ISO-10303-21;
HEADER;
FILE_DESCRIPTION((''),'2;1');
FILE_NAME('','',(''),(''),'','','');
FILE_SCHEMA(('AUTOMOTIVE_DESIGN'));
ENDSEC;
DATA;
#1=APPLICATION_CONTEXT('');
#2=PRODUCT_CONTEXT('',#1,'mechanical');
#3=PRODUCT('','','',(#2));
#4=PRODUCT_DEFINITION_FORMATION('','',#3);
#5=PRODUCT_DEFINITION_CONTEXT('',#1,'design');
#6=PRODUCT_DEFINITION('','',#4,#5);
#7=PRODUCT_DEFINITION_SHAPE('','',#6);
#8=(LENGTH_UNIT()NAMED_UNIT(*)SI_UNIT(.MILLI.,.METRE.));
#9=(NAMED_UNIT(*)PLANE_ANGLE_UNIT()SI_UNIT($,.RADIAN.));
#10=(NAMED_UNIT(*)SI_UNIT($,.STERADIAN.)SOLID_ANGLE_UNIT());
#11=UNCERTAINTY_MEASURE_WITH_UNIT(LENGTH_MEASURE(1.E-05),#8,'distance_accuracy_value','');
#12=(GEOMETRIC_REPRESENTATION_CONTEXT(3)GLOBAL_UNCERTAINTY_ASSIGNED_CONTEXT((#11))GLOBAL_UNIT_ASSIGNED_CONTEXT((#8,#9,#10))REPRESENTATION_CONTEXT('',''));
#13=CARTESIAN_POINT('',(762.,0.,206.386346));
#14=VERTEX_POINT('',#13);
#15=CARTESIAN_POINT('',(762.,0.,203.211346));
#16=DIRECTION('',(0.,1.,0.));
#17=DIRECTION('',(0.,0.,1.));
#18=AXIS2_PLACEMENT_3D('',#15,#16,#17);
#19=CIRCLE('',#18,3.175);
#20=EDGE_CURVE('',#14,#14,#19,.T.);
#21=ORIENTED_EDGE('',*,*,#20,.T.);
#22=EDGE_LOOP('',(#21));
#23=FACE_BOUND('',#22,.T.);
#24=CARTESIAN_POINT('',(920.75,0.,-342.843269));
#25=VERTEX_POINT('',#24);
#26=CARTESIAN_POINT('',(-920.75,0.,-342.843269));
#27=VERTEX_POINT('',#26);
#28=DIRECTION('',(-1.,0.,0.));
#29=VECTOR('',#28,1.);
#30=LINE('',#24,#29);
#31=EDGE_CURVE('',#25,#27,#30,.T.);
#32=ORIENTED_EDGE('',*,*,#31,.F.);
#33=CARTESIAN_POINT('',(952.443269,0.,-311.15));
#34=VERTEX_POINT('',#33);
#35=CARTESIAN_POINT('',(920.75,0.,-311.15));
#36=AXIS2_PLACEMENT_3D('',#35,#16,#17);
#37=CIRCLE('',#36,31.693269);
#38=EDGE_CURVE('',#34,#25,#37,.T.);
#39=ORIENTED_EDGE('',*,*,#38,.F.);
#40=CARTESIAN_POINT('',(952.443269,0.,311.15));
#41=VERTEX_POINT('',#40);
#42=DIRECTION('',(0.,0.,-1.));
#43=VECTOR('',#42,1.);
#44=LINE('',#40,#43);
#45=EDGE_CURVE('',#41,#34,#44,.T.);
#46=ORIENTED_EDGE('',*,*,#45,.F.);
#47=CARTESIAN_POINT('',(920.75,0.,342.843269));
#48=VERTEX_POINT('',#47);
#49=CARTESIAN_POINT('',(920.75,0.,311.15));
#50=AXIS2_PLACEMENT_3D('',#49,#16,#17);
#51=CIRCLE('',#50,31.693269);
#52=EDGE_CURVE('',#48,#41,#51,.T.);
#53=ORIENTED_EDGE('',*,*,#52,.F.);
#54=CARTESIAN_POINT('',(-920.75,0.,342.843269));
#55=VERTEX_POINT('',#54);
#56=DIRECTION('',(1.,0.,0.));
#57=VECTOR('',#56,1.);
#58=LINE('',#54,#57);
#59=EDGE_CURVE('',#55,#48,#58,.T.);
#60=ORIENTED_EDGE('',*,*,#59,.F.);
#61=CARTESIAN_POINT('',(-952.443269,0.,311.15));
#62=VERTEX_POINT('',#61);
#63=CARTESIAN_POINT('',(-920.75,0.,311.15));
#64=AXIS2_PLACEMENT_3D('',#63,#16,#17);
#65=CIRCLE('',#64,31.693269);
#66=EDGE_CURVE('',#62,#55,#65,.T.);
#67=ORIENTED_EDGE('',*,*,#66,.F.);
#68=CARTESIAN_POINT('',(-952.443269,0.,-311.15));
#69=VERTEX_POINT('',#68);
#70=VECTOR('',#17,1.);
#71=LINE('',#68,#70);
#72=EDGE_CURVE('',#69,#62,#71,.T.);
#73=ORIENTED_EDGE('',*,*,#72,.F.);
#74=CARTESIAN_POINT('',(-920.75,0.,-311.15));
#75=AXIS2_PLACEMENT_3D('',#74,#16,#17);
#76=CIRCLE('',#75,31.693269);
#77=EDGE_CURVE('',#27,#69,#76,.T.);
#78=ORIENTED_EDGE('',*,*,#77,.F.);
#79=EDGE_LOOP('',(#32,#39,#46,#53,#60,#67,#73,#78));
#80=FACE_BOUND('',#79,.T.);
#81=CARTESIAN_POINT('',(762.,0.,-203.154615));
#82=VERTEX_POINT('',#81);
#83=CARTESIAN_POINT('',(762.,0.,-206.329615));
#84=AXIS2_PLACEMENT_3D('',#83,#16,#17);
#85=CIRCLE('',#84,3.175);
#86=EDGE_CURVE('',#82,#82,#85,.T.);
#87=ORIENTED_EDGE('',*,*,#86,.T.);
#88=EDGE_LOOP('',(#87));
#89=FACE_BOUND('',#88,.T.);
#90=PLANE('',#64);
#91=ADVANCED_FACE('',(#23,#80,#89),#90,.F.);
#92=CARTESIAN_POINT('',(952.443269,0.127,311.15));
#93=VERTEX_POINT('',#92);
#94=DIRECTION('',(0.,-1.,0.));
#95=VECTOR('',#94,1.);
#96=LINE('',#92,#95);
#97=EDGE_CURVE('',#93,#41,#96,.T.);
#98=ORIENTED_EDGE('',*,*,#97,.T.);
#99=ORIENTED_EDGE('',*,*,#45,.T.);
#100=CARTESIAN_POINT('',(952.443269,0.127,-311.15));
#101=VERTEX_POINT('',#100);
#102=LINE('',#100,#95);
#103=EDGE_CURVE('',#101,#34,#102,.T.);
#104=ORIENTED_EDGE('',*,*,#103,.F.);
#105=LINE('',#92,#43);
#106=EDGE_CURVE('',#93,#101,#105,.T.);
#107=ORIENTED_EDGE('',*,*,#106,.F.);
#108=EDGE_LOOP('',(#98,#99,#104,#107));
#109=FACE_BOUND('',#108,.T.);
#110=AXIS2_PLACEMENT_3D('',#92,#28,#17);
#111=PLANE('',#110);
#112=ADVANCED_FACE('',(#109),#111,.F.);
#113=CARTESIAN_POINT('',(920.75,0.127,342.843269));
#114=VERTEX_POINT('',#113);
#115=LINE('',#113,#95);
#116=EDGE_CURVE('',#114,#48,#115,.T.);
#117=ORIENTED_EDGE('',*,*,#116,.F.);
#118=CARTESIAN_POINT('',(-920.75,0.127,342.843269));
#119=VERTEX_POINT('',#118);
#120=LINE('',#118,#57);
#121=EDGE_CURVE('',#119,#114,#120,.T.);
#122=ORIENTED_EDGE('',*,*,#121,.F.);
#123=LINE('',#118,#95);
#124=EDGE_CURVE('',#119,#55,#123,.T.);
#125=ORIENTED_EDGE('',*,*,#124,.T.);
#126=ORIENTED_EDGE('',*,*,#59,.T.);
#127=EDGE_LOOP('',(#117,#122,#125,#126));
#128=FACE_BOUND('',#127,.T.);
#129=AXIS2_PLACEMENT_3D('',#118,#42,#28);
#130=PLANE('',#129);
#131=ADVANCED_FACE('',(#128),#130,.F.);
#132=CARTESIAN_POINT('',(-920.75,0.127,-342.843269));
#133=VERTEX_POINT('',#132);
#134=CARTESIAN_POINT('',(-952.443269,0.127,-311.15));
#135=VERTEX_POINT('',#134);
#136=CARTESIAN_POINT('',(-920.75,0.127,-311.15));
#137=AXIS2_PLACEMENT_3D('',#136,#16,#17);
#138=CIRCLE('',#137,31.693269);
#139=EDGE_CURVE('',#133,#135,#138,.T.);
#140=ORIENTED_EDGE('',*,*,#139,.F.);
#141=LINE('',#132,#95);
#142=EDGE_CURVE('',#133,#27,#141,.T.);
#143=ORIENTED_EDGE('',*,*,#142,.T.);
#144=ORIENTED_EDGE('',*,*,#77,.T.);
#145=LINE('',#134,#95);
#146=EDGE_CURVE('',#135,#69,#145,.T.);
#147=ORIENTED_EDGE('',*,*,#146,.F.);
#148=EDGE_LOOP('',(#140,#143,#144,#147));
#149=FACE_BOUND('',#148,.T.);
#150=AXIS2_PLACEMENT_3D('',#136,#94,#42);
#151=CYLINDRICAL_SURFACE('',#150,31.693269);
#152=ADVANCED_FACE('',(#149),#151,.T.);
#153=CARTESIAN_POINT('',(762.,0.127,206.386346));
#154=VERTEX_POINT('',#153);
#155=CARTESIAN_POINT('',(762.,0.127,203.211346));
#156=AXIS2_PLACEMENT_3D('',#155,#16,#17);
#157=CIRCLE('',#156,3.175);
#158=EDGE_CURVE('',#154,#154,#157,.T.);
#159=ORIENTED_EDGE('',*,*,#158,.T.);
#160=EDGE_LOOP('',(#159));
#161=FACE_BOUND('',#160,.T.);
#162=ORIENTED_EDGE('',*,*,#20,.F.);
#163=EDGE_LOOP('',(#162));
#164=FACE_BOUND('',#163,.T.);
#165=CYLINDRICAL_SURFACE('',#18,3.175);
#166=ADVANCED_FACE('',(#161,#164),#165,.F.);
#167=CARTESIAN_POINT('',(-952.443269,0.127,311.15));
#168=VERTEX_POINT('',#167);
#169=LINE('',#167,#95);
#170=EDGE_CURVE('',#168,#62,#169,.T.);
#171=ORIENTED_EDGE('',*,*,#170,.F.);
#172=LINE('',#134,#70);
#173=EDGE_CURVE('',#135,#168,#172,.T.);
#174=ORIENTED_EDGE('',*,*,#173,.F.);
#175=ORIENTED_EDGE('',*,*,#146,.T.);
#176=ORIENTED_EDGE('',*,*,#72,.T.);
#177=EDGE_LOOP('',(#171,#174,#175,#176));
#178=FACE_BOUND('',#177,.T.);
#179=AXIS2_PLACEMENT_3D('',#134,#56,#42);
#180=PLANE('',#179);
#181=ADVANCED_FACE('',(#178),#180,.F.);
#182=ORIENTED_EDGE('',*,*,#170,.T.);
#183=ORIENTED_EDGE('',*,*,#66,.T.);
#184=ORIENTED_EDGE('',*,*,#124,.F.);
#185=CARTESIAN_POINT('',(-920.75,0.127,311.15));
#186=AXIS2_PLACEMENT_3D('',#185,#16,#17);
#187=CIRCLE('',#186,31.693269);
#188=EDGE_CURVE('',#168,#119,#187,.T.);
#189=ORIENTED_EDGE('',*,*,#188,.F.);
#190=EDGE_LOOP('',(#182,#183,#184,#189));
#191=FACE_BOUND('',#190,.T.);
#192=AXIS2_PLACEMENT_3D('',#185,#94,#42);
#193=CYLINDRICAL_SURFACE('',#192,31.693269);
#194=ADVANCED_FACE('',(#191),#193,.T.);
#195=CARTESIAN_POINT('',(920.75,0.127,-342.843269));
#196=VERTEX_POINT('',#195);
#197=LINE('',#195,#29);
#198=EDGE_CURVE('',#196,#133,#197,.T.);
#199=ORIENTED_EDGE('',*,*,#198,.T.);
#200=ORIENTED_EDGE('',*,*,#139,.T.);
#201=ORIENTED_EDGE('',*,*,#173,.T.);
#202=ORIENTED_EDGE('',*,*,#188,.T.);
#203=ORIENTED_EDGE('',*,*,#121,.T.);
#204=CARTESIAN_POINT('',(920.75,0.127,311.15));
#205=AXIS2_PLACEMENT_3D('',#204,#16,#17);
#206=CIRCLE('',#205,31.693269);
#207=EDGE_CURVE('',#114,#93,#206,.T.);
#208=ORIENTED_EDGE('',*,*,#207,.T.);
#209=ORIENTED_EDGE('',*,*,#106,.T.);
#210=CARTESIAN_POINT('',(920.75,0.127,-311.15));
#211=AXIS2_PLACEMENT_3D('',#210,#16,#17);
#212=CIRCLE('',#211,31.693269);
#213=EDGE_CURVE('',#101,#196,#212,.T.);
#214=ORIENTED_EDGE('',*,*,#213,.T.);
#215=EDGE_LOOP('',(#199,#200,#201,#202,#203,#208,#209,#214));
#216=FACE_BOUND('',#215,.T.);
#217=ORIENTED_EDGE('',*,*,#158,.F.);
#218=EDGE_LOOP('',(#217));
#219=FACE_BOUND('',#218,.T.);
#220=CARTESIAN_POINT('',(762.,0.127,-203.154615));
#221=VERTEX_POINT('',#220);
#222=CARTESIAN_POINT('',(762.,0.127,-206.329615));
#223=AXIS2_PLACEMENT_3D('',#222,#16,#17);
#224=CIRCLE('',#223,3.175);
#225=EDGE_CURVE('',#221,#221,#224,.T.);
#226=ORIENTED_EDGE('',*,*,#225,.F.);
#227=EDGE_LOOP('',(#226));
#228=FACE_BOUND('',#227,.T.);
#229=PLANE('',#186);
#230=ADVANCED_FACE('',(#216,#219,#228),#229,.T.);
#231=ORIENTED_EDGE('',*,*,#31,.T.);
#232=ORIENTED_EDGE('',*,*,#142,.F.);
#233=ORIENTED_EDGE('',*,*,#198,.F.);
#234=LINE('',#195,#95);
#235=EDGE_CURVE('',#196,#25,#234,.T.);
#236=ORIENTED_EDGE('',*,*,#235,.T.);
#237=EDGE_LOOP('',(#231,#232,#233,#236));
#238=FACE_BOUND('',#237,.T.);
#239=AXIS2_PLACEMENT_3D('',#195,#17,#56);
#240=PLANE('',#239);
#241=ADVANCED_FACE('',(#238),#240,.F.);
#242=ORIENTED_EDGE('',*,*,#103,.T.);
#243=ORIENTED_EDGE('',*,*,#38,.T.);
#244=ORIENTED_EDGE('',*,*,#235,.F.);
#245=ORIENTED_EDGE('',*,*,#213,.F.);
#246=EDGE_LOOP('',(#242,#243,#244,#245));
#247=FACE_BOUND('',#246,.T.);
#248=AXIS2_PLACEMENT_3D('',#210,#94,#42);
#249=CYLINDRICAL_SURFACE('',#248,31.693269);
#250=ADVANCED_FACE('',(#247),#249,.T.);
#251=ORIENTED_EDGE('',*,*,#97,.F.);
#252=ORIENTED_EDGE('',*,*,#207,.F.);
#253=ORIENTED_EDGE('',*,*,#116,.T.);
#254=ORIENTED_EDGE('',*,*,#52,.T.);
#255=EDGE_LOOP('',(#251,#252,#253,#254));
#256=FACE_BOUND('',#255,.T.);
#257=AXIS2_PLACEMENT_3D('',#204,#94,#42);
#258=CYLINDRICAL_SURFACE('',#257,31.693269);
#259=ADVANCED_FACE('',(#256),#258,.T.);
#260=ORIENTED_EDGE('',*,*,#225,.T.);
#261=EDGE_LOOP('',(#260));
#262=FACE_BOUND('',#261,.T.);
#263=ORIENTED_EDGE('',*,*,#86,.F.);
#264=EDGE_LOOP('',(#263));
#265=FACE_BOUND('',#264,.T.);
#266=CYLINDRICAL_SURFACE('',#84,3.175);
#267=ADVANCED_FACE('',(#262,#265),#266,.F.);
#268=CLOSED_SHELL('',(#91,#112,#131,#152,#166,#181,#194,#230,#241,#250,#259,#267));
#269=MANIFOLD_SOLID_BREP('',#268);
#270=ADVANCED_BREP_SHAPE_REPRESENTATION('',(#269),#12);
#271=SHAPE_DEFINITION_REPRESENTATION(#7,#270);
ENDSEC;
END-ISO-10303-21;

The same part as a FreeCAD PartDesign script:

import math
import FreeCAD as App
import Part
import Sketcher
Q = App.Units.Quantity

doc = App.newDocument("Part")
body = doc.addObject("PartDesign::Body", "Body")

sketch1 = body.newObject("Sketcher::SketchObject", "Sketch")
sketch1.AttachmentSupport = (doc.getObject("XZ_Plane"), [""])
sketch1.MapMode = "FlatFace"
sketch1.addGeometry(Part.LineSegment(App.Vector(-921, 343, 0), App.Vector(921, 343, 0)), False)
sketch1.addGeometry(Part.ArcOfCircle(Part.Circle(App.Vector(921, 311, 0), App.Vector(0, 0, 1), 32), math.radians(0), math.radians(90)), False)
sketch1.addGeometry(Part.LineSegment(App.Vector(952, 311, 0), App.Vector(952, -311, 0)), False)
sketch1.addGeometry(Part.ArcOfCircle(Part.Circle(App.Vector(921, -311, 0), App.Vector(0, 0, 1), 32), math.radians(-90), math.radians(0)), False)
sketch1.addGeometry(Part.LineSegment(App.Vector(921, -343, 0), App.Vector(-921, -343, 0)), False)
sketch1.addGeometry(Part.ArcOfCircle(Part.Circle(App.Vector(-921, -311, 0), App.Vector(0, 0, 1), 32), math.radians(180), math.radians(270)), False)
sketch1.addGeometry(Part.LineSegment(App.Vector(-952, -311, 0), App.Vector(-952, 311, 0)), False)
sketch1.addGeometry(Part.ArcOfCircle(Part.Circle(App.Vector(-921, 311, 0), App.Vector(0, 0, 1), 32), math.radians(90), math.radians(180)), False)
sketch1.addConstraint(Sketcher.Constraint("Tangent", 0, 2, 1, 2))
sketch1.addConstraint(Sketcher.Constraint("Tangent", 1, 1, 2, 1))
sketch1.addConstraint(Sketcher.Constraint("Tangent", 2, 2, 3, 2))
sketch1.addConstraint(Sketcher.Constraint("Tangent", 3, 1, 4, 1))
sketch1.addConstraint(Sketcher.Constraint("Tangent", 4, 2, 5, 2))
sketch1.addConstraint(Sketcher.Constraint("Tangent", 5, 1, 6, 1))
sketch1.addConstraint(Sketcher.Constraint("Tangent", 6, 2, 7, 2))
sketch1.addConstraint(Sketcher.Constraint("Tangent", 7, 1, 0, 1))
sketch1.addConstraint(Sketcher.Constraint("Horizontal", 0))
sketch1.addConstraint(Sketcher.Constraint("Vertical", 2))
sketch1.addConstraint(Sketcher.Constraint("Horizontal", 4))
sketch1.addConstraint(Sketcher.Constraint("Vertical", 6))
sketch1.addConstraint(Sketcher.Constraint("Equal", 1, 3))
sketch1.addConstraint(Sketcher.Constraint("Equal", 3, 5))
sketch1.addConstraint(Sketcher.Constraint("Equal", 5, 7))
sketch1.addConstraint(Sketcher.Constraint("Symmetric", 1, 3, 5, 3, -1, 1))
sketch1.addConstraint(Sketcher.Constraint("DistanceX", 0, 1, 0, 2, Q("72.5 in")))
sketch1.addConstraint(Sketcher.Constraint("DistanceY", 2, 2, 2, 1, Q("24.5 in")))
sketch1.addConstraint(Sketcher.Constraint("Radius", 1, Q("31.693269 mm")))
pad1 = body.newObject("PartDesign::Pad", "Pad")
pad1.Profile = sketch1
pad1.Length = Q("0.005 in")
pad1.Reversed = True

sketch2 = body.newObject("Sketcher::SketchObject", "Sketch001")
sketch2.AttachmentSupport = (doc.getObject("XZ_Plane"), [""])
sketch2.MapMode = "FlatFace"
sketch2.AttachmentOffset = App.Placement(App.Vector(0, 0, -0.005 * 25.4), App.Rotation())
sketch2.addGeometry(Part.Circle(App.Vector(762, -206.3, 0), App.Vector(0, 0, 1), 3.2), False)
sketch2.addGeometry(Part.Circle(App.Vector(762, 203.2, 0), App.Vector(0, 0, 1), 3.2), False)
sketch2.addConstraint(Sketcher.Constraint("Equal", 0, 1))
sketch2.addConstraint(Sketcher.Constraint("Vertical", 0, 3, 1, 3))
sketch2.addConstraint(Sketcher.Constraint("Diameter", 0, Q("0.25 in")))
sketch2.addConstraint(Sketcher.Constraint("DistanceX", -1, 1, 0, 3, Q("30 in")))
sketch2.addConstraint(Sketcher.Constraint("DistanceY", 0, 3, 1, 3, Q("409.540962 mm")))
sketch2.addConstraint(Sketcher.Constraint("DistanceY", 0, 3, -1, 1, Q("206.329615 mm")))
pocket1 = body.newObject("PartDesign::Pocket", "Pocket")
pocket1.Profile = sketch2
pocket1.Type = "ThroughAll"
pocket1.Reversed = True

doc.recompute()
